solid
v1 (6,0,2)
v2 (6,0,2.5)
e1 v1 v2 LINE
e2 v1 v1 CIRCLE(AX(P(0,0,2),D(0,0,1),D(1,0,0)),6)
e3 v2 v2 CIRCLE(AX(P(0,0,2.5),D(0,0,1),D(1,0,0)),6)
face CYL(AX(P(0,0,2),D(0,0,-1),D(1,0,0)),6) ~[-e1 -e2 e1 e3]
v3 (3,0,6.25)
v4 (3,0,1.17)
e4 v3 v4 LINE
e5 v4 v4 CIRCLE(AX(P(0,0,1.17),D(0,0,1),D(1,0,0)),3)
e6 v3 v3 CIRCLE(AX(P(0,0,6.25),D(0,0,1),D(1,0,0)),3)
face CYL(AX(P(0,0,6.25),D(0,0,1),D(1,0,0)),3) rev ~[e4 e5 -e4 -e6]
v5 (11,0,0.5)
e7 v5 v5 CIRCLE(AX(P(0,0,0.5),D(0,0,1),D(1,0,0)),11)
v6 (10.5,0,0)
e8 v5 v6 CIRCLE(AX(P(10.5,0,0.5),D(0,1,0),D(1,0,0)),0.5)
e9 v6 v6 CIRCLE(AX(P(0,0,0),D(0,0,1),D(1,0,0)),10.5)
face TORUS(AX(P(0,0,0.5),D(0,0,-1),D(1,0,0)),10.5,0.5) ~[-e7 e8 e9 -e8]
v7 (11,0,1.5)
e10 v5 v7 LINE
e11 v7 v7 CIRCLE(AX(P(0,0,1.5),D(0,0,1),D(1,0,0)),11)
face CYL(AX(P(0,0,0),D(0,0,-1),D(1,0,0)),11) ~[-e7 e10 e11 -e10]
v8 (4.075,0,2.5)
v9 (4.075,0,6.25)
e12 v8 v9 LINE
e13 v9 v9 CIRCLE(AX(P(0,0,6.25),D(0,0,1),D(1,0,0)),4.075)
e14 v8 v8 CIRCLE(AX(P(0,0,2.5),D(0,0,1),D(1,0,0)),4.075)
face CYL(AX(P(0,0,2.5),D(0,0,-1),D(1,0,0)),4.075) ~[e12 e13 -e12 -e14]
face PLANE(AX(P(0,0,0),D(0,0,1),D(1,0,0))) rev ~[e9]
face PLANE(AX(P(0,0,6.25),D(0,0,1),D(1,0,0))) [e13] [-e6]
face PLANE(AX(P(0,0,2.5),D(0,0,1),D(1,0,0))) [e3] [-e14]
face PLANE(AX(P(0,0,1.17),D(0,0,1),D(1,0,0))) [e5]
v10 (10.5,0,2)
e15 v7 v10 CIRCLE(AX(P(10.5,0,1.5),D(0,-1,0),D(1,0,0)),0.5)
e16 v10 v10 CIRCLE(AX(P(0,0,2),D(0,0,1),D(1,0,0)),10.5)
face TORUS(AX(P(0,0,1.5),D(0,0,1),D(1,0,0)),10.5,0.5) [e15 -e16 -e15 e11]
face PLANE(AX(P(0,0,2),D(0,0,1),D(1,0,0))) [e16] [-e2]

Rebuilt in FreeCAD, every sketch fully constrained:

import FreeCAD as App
import Part
import Sketcher
from FreeCAD import Vector
Q = App.Units.Quantity


def edges_at(feature, points):
    """Names of the edges that pass closest to the given points."""
    edges = feature.Shape.Edges
    near = lambda p: min(range(len(edges)), key=lambda i: edges[i].distToShape(Part.Vertex(*p))[0])
    return sorted({f"Edge{near(p) + 1}" for p in points})

doc = App.newDocument("Part")
body = doc.addObject("PartDesign::Body", "Body")

# Sketch on XY plane
sketch1 = body.newObject("Sketcher::SketchObject", "Sketch")
sketch1.AttachmentSupport = (doc.getObject("XY_Plane"), [""])
sketch1.MapMode = "FlatFace"
sketch1.addGeometry(Part.Circle(Vector(0, 0, 0), Vector(0, 0, 1), 11), False)
sketch1.addConstraint([
    Sketcher.Constraint("Coincident", 0, 3, -1, 1),
    Sketcher.Constraint("Diameter", 0, Q("22 mm")),
])
pad1 = body.newObject("PartDesign::Pad", "Pad")
pad1.Profile = sketch1
pad1.Length = 2

# Sketch on XY plane
sketch2 = body.newObject("Sketcher::SketchObject", "Sketch001")
sketch2.AttachmentSupport = (doc.getObject("XY_Plane"), [""])
sketch2.MapMode = "FlatFace"
sketch2.AttachmentOffset = App.Placement(Vector(0, 0, 2), App.Rotation())
sketch2.addGeometry(Part.Circle(Vector(0, 0, 0), Vector(0, 0, 1), 6), False)
sketch2.addConstraint([
    Sketcher.Constraint("Coincident", 0, 3, -1, 1),
    Sketcher.Constraint("Diameter", 0, Q("12 mm")),
])
pad2 = body.newObject("PartDesign::Pad", "Pad001")
pad2.Profile = sketch2
pad2.Length = 0.5

# Sketch on XY plane
sketch3 = body.newObject("Sketcher::SketchObject", "Sketch002")
sketch3.AttachmentSupport = (doc.getObject("XY_Plane"), [""])
sketch3.MapMode = "FlatFace"
sketch3.AttachmentOffset = App.Placement(Vector(0, 0, 2.5), App.Rotation())
sketch3.addGeometry(Part.Circle(Vector(0, 0, 0), Vector(0, 0, 1), 4.075), False)
sketch3.addConstraint([
    Sketcher.Constraint("Coincident", 0, 3, -1, 1),
    Sketcher.Constraint("Diameter", 0, Q("8.15 mm")),
])
pad3 = body.newObject("PartDesign::Pad", "Pad002")
pad3.Profile = sketch3
pad3.Length = 3.75

# Sketch on XY plane
sketch4 = body.newObject("Sketcher::SketchObject", "Sketch003")
sketch4.AttachmentSupport = (doc.getObject("XY_Plane"), [""])
sketch4.MapMode = "FlatFace"
sketch4.AttachmentOffset = App.Placement(Vector(0, 0, 6.25), App.Rotation())
sketch4.addGeometry(Part.Circle(Vector(0, 0, 0), Vector(0, 0, 1), 3), False)
sketch4.addConstraint([
    Sketcher.Constraint("Coincident", 0, 3, -1, 1),
    Sketcher.Constraint("Diameter", 0, Q("6 mm")),
])
pocket1 = body.newObject("PartDesign::Pocket", "Pocket")
pocket1.Profile = sketch4
pocket1.Length = 5.08
doc.recompute()

fillet = body.newObject("PartDesign::Fillet", "Fillet")
fillet.Base = (pocket1, edges_at(pocket1, [(-11, 0, 2), (-11, 0, 0)]))
fillet.Radius = 0.5

doc.recompute()
